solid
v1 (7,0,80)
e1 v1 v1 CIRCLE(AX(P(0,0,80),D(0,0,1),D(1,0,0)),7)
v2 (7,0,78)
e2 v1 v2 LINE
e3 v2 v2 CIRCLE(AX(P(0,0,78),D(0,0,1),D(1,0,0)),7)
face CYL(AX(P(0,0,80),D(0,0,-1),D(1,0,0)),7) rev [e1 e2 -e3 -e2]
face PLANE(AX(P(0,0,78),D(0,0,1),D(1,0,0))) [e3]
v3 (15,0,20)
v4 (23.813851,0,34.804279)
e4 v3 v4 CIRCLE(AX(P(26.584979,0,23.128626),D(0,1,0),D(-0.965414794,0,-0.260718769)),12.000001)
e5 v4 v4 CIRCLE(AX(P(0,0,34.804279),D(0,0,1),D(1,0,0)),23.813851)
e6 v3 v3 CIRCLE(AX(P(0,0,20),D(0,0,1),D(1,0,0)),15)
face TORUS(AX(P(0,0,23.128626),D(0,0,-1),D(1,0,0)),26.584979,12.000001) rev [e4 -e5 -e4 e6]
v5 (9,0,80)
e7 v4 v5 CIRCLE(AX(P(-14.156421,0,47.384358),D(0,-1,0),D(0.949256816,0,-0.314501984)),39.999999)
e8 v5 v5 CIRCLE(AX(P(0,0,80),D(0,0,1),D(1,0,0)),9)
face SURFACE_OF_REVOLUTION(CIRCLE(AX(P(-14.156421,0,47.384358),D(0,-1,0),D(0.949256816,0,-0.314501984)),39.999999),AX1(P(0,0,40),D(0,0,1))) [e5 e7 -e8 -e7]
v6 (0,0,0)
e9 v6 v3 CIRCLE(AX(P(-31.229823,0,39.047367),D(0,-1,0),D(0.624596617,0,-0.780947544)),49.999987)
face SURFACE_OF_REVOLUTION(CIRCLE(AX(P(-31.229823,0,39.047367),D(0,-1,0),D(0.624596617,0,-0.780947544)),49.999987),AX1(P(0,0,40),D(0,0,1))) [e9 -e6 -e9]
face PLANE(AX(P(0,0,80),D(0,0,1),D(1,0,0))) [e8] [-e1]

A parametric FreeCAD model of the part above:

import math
import FreeCAD as App
import Part
import Sketcher

V = App.Vector

doc = App.newDocument("Part")
body = doc.addObject("PartDesign::Body", "Body")

sketch1 = doc.addObject("Sketcher::SketchObject", "Sketch")
body.addObject(sketch1)
sketch1.AttachmentSupport = (doc.XZ_Plane, [""])
sketch1.MapMode = "FlatFace"
sketch1.addGeometry([
    Part.ArcOfCircle(Part.Circle(V(-14.156421, 47.384358, 0), V(0, 0, 1), 39.999999), math.radians(-18.330752), math.radians(54.626048)),
    Part.LineSegment(V(9, 80, 0), V(7, 80, 0)),
    Part.LineSegment(V(7, 80, 0), V(7, 78, 0)),
    Part.LineSegment(V(7, 78, 0), V(0, 78, 0)),
    Part.LineSegment(V(0, 78, 0), V(0, 0, 0)),
    Part.ArcOfCircle(Part.Circle(V(-31.229823, 39.047367, 0), V(0, 0, 1), 49.999987), math.radians(-51.347414), math.radians(-22.392382)),
    Part.ArcOfCircle(Part.Circle(V(26.584979, 23.128626, 0), V(0, 0, 1), 12.000001), math.radians(103.351671), math.radians(195.112716)),
], False)
sketch1.addConstraint([
    Sketcher.Constraint("Coincident", 0, 2, 1, 1),
    Sketcher.Constraint("Coincident", 1, 2, 2, 1),
    Sketcher.Constraint("Coincident", 2, 2, 3, 1),
    Sketcher.Constraint("Coincident", 3, 2, 4, 1),
    Sketcher.Constraint("Coincident", 4, 2, 5, 1),
    Sketcher.Constraint("Coincident", 5, 2, 6, 2),
    Sketcher.Constraint("Coincident", 6, 1, 0, 1),
    Sketcher.Constraint("Horizontal", 1),
    Sketcher.Constraint("Vertical", 2),
    Sketcher.Constraint("Horizontal", 3),
    Sketcher.Constraint("Vertical", 4),
    Sketcher.Constraint("Coincident", 4, 2, -1, 1),
    Sketcher.Constraint("Equal", 1, 2),
    Sketcher.Constraint("Radius", 0, 39.999999),
    Sketcher.Constraint("Radius", 6, 12.000001),
    Sketcher.Constraint("DistanceX", 1, 2, 1, 1, 2.0),
    Sketcher.Constraint("DistanceX", 3, 2, 3, 1, 7.0),
    Sketcher.Constraint("DistanceY", 4, 2, 4, 1, 78.0),
    Sketcher.Constraint("DistanceX", -1, 1, 5, 2, 15.0),
    Sketcher.Constraint("DistanceY", -1, 1, 5, 2, 20.0),
    Sketcher.Constraint("Radius", 5, 49.999987),
    Sketcher.Constraint("DistanceX", 0, 3, 6, 3, 40.7414),
    Sketcher.Constraint("DistanceX", 5, 3, 6, 3, 57.814802),
])
revolution = doc.addObject("PartDesign::Revolution", "Revolution")
body.addObject(revolution)
revolution.Profile = sketch1
revolution.ReferenceAxis = (sketch1, ["V_Axis"])
revolution.Angle = 360

doc.recompute()
